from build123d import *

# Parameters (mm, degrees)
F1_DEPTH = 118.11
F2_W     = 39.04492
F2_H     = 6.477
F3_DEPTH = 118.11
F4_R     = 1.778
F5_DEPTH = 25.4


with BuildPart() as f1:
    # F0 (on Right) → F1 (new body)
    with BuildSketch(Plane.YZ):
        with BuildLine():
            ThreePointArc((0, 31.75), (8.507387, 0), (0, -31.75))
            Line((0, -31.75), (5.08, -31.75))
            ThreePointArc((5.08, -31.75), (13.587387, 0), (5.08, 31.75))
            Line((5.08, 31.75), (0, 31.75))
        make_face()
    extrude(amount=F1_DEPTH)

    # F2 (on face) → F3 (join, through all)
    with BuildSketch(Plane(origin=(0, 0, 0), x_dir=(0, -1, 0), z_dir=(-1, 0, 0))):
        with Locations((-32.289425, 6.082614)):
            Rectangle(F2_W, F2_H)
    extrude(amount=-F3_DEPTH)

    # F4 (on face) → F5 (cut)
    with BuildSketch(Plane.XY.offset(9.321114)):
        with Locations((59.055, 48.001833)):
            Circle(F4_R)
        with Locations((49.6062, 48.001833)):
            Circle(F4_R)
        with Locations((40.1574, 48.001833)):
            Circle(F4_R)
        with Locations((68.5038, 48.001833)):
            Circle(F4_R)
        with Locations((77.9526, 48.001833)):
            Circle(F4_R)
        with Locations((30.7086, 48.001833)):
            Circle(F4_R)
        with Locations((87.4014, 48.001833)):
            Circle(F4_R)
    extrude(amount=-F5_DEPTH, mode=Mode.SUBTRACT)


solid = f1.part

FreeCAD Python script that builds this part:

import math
import FreeCAD as App
import Part
import Sketcher
from FreeCAD import Vector
Q = App.Units.Quantity

doc = App.newDocument("Part")
params = doc.addObject("Spreadsheet::Sheet", "Params")
for row, (alias, value) in enumerate([
    ("sketch1_radius", "2.5 in"),
    ("sketch1_width", "0.2 in"),
    ("pad1_length", "4.65 in"),
    ("sketch2_height", "0.255 in"),
    ("pad2_length", "4.65 in"),
    ("sketch3_diameter", "0.14 in"),
    ("pocket1_length", "1 in"),
], start=1):
    params.set(f"A{row}", alias)
    params.set(f"B{row}", "=" + value)
    params.setAlias(f"B{row}", alias)

body = doc.addObject("PartDesign::Body", "Body")

# Sketch on YZ plane
sketch1 = body.newObject("Sketcher::SketchObject", "Sketch")
sketch1.AttachmentSupport = (doc.getObject("YZ_Plane"), [""])
sketch1.MapMode = "FlatFace"
sketch1.addGeometry([
    Part.ArcOfCircle(Part.Circle(Vector(-55, 0, 0), Vector(0, 0, 1), 63), math.radians(-30), math.radians(30)),
    Part.LineSegment(Vector(0, -32, 0), Vector(5, -32, 0)),
    Part.ArcOfCircle(Part.Circle(Vector(-50, 0, 0), Vector(0, 0, 1), 63), math.radians(-30), math.radians(30)),
    Part.LineSegment(Vector(5, 32, 0), Vector(0, 32, 0)),
], False)
sketch1.addConstraint([
    Sketcher.Constraint("Coincident", 0, 1, 1, 1),
    Sketcher.Constraint("Coincident", 1, 2, 2, 1),
    Sketcher.Constraint("Coincident", 2, 2, 3, 1),
    Sketcher.Constraint("Coincident", 3, 2, 0, 2),
    Sketcher.Constraint("Horizontal", 1),
    Sketcher.Constraint("Horizontal", 3),
    Sketcher.Constraint("Equal", 0, 2),
    Sketcher.Constraint("Symmetric", 0, 1, 3, 2, -1, 1),
    Sketcher.Constraint("PointOnObject", 0, 3, -1),
    Sketcher.Constraint("PointOnObject", 2, 3, -1),
    Sketcher.Constraint("Radius", 0, Q("2.5 in")),
    Sketcher.Constraint("DistanceX", 1, 1, 1, 2, Q("0.2 in")),
    Sketcher.Constraint("DistanceY", 1, 2, 2, 2, Q("2.5 in")),
])
sketch1.setExpression("Constraints[10]", "Params.sketch1_radius")
sketch1.setExpression("Constraints[11]", "Params.sketch1_width")
pad1 = body.newObject("PartDesign::Pad", "Pad")
pad1.Profile = sketch1
pad1.setExpression("Length", "Params.pad1_length")

# Sketch on YZ plane
sketch2 = body.newObject("Sketcher::SketchObject", "Sketch001")
sketch2.AttachmentSupport = (doc.getObject("YZ_Plane"), [""])
sketch2.MapMode = "FlatFace"
sketch2.addGeometry([
    Part.LineSegment(Vector(52, 9, 0), Vector(52, 3, 0)),
    Part.LineSegment(Vector(52, 3, 0), Vector(13, 3, 0)),
    Part.LineSegment(Vector(13, 3, 0), Vector(13, 9, 0)),
    Part.LineSegment(Vector(13, 9, 0), Vector(52, 9, 0)),
], False)
sketch2.addConstraint([
    Sketcher.Constraint("Coincident", 0, 2, 1, 1),
    Sketcher.Constraint("Coincident", 1, 2, 2, 1),
    Sketcher.Constraint("Coincident", 2, 2, 3, 1),
    Sketcher.Constraint("Coincident", 3, 2, 0, 1),
    Sketcher.Constraint("Vertical", 0),
    Sketcher.Constraint("Horizontal", 1),
    Sketcher.Constraint("Vertical", 2),
    Sketcher.Constraint("Horizontal", 3),
    Sketcher.Constraint("DistanceY", 0, 2, 0, 1, Q("0.255 in")),
    Sketcher.Constraint("DistanceX", 1, 2, 1, 1, 39.04492),
    Sketcher.Constraint("DistanceX", -1, 1, 0, 2, 51.811885),
    Sketcher.Constraint("DistanceY", -1, 1, 0, 2, 2.844114),
])
sketch2.setExpression("Constraints[8]", "Params.sketch2_height")
pad2 = body.newObject("PartDesign::Pad", "Pad001")
pad2.Profile = sketch2
pad2.setExpression("Length", "Params.pad2_length")

# Sketch on XY plane
sketch3 = body.newObject("Sketcher::SketchObject", "Sketch002")
sketch3.AttachmentSupport = (doc.getObject("XY_Plane"), [""])
sketch3.MapMode = "FlatFace"
sketch3.AttachmentOffset = App.Placement(Vector(0, 0, 9.321114), App.Rotation())
sketch3.addGeometry([
    Part.Circle(Vector(59.1, 48, 0), Vector(0, 0, 1), 1.8),  # 0
    Part.Circle(Vector(49.6, 48, 0), Vector(0, 0, 1), 1.8),  # 1
    Part.Circle(Vector(40.2, 48, 0), Vector(0, 0, 1), 1.8),  # 2
    Part.Circle(Vector(68.5, 48, 0), Vector(0, 0, 1), 1.8),  # 3
    Part.Circle(Vector(78, 48, 0), Vector(0, 0, 1), 1.8),  # 4
    Part.Circle(Vector(30.7, 48, 0), Vector(0, 0, 1), 1.8),  # 5
    Part.Circle(Vector(87.4, 48, 0), Vector(0, 0, 1), 1.8),  # 6
], False)
sketch3.addConstraint([
    Sketcher.Constraint("Equal", 0, 1),
    Sketcher.Constraint("Equal", 1, 2),
    Sketcher.Constraint("Equal", 2, 3),
    Sketcher.Constraint("Equal", 3, 4),
    Sketcher.Constraint("Equal", 4, 5),
    Sketcher.Constraint("Equal", 5, 6),
    Sketcher.Constraint("Horizontal", 0, 3, 1, 3),
    Sketcher.Constraint("Horizontal", 1, 3, 2, 3),
    Sketcher.Constraint("Horizontal", 2, 3, 3, 3),
    Sketcher.Constraint("Horizontal", 3, 3, 4, 3),
    Sketcher.Constraint("Horizontal", 4, 3, 5, 3),
    Sketcher.Constraint("Horizontal", 5, 3, 6, 3),
    Sketcher.Constraint("Diameter", 0, Q("0.14 in")),
    Sketcher.Constraint("DistanceX", 5, 3, 4, 3, Q("1.86 in")),
    Sketcher.Constraint("DistanceX", 2, 3, 6, 3, Q("1.86 in")),
    Sketcher.Constraint("DistanceX", -1, 1, 0, 3, Q("2.325 in")),
    Sketcher.Constraint("DistanceX", -1, 1, 1, 3, Q("1.953 in")),
    Sketcher.Constraint("DistanceX", -1, 1, 2, 3, Q("1.581 in")),
    Sketcher.Constraint("DistanceX", -1, 1, 3, 3, Q("2.697 in")),
    Sketcher.Constraint("DistanceX", -1, 1, 4, 3, Q("3.069 in")),
    Sketcher.Constraint("DistanceY", -1, 1, 0, 3, 48.001833),
])
sketch3.setExpression("Constraints[12]", "Params.sketch3_diameter")
pocket1 = body.newObject("PartDesign::Pocket", "Pocket")
pocket1.Profile = sketch3
pocket1.setExpression("Length", "Params.pocket1_length")

doc.recompute()
